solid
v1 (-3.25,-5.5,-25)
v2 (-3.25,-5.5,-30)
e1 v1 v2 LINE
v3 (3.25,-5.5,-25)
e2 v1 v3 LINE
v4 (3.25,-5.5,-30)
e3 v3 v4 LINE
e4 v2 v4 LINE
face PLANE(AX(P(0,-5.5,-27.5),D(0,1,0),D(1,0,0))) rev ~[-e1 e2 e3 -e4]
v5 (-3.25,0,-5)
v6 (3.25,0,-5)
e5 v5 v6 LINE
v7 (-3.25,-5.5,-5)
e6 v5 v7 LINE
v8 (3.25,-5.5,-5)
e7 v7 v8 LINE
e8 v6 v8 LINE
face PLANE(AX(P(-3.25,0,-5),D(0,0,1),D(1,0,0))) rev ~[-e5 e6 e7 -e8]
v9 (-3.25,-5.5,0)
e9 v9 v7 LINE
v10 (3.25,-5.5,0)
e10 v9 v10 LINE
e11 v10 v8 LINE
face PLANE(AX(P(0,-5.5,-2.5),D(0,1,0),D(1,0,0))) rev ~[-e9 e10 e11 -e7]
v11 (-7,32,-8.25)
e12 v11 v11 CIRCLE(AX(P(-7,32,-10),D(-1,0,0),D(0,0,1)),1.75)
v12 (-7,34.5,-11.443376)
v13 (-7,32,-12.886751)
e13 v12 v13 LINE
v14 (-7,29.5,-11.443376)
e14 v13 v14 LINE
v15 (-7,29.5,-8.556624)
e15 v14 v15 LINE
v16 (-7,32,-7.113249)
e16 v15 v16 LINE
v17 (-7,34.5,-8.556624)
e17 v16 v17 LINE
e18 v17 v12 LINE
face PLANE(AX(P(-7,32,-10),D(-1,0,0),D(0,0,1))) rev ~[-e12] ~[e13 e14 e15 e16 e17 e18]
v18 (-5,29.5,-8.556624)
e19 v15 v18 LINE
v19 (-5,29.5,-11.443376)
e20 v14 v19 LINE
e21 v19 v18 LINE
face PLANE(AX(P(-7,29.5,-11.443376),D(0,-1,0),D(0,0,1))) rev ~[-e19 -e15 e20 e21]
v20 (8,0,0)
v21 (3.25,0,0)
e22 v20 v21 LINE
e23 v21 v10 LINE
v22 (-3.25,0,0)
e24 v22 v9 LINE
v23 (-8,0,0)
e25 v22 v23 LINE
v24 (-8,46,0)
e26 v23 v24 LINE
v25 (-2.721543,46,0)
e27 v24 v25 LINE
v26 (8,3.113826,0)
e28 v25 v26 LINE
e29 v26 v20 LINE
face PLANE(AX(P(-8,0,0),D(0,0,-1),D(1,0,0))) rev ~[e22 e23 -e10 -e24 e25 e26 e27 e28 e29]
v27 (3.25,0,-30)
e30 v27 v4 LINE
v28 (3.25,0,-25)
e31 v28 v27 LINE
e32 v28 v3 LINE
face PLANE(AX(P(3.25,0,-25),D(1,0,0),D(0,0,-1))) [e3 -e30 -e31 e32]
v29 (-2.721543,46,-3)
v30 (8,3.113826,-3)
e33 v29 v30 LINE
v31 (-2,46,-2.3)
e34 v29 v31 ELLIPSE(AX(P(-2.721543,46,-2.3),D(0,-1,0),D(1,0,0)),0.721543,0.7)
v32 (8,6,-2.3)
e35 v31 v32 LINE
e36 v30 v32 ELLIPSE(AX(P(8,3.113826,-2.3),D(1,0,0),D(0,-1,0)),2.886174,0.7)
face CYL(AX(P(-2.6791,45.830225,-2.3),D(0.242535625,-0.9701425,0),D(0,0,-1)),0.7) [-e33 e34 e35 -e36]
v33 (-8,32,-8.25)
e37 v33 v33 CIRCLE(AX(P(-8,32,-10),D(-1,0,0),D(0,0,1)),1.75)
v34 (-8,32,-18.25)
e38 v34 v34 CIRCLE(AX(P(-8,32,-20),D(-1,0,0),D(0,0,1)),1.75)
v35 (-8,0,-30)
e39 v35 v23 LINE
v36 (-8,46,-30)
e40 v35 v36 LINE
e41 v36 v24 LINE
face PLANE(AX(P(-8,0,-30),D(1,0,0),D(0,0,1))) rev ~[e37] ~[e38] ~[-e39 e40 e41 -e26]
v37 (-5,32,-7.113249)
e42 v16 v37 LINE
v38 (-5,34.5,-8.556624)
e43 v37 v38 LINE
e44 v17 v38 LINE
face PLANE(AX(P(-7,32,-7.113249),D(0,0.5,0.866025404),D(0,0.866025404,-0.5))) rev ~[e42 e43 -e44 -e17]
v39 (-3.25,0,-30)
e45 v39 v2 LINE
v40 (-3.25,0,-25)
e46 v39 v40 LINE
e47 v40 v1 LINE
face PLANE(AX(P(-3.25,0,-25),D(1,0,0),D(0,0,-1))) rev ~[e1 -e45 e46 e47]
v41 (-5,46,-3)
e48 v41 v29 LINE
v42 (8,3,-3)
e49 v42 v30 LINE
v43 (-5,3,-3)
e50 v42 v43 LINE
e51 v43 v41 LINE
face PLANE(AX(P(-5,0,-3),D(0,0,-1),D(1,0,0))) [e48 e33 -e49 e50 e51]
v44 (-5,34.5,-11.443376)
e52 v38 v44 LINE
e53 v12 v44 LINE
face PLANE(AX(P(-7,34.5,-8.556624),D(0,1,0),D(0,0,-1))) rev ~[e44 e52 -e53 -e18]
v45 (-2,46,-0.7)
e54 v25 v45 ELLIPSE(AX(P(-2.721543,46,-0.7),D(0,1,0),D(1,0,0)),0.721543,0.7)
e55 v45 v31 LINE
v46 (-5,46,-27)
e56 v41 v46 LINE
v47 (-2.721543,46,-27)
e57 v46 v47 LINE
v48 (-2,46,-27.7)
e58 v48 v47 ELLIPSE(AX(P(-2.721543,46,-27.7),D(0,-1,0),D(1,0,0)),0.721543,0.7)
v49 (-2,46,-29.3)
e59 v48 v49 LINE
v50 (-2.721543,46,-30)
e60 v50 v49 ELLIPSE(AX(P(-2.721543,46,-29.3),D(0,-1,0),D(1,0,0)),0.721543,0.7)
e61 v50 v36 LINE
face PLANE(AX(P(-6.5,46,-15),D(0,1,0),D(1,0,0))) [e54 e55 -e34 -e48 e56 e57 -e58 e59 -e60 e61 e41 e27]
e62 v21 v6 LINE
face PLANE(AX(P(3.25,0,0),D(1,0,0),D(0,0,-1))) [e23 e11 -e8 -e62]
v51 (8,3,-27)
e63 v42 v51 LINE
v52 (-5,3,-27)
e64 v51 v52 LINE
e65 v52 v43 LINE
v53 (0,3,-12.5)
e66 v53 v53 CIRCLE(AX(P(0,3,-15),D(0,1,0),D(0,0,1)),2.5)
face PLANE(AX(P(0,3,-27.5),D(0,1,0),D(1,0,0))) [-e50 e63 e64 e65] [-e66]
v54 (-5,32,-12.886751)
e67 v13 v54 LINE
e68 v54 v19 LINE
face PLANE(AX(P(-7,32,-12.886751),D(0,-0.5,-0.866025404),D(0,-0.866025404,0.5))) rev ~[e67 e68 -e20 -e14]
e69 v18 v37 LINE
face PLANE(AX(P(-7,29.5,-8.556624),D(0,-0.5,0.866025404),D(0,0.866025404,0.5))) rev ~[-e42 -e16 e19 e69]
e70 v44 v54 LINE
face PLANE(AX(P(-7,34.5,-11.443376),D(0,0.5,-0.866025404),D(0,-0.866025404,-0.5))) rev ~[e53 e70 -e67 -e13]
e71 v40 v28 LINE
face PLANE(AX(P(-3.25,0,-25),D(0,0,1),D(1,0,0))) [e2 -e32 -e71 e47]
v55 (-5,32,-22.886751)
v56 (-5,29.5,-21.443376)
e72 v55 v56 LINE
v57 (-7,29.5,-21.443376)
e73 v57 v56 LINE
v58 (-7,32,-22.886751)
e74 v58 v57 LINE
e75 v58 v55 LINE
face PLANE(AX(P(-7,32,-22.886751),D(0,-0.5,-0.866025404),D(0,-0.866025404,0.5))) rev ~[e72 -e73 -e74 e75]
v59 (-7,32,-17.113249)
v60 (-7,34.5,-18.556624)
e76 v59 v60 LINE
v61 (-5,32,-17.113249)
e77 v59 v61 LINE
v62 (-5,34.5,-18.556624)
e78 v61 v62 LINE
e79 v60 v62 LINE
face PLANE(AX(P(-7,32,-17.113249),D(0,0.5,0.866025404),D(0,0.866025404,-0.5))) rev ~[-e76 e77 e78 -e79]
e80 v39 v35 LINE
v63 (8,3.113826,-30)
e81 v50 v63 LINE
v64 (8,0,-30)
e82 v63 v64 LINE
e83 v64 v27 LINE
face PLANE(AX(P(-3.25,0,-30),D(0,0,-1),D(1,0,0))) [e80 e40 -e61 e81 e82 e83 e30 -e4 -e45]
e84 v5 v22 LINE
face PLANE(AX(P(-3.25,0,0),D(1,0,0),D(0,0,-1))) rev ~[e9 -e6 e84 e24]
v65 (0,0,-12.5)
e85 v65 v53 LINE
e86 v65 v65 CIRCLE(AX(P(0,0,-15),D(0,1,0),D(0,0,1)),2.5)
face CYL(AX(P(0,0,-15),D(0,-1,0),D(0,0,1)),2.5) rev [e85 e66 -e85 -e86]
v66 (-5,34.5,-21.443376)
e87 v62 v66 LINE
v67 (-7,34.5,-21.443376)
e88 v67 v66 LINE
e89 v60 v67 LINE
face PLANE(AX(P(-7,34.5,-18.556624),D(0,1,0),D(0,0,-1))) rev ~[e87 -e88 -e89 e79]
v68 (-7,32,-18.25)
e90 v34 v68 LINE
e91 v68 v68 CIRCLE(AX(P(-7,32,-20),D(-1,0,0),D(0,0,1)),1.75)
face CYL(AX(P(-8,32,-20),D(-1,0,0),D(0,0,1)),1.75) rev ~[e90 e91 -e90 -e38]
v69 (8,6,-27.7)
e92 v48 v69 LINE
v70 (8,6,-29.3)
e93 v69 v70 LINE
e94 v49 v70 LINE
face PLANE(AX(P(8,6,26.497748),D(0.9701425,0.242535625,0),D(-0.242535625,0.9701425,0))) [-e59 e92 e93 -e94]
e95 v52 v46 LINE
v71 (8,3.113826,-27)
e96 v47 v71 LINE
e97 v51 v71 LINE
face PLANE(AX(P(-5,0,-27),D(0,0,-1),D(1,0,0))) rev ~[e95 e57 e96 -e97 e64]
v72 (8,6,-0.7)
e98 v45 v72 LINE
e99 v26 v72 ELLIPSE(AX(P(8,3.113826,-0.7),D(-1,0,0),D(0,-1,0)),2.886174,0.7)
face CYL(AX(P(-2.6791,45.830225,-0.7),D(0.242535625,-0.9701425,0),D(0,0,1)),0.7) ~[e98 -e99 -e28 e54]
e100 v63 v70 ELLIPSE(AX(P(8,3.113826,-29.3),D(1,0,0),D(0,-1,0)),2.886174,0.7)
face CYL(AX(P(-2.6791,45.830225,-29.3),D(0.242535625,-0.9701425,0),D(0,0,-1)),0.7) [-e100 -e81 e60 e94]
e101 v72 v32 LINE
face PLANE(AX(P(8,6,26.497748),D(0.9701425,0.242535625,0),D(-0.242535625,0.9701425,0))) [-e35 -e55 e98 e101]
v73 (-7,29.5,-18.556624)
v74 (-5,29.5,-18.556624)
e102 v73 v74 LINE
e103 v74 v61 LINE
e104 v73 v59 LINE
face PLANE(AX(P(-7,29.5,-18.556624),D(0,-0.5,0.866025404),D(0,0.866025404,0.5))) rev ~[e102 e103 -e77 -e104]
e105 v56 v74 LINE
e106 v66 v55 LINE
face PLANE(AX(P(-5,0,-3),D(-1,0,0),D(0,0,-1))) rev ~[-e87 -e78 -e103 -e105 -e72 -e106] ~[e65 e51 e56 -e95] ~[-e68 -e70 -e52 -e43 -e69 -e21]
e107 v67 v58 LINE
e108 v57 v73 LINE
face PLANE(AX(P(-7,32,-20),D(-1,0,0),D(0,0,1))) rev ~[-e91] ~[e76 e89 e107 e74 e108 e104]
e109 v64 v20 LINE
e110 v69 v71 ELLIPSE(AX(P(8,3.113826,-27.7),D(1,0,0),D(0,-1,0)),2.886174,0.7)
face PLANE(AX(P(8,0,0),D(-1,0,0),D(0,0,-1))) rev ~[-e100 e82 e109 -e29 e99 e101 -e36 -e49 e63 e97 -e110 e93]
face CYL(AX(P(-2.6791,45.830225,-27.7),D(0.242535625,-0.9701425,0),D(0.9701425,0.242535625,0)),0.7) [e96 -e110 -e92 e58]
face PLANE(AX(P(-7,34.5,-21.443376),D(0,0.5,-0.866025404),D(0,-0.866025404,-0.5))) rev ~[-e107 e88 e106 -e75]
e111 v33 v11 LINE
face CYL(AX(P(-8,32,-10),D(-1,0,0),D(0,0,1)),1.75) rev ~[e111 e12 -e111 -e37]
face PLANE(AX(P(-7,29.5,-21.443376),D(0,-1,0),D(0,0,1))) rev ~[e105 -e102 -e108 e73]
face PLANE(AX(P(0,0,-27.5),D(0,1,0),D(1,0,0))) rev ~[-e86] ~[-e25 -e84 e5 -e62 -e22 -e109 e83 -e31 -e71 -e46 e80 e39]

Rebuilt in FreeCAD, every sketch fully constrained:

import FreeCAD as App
import Part
import Sketcher

V = App.Vector
Q = App.Units.Quantity


def edges_at(feature, points):
    """Names of the edges that pass closest to the given points."""
    edges = feature.Shape.Edges
    near = lambda p: min(range(len(edges)), key=lambda i: edges[i].distToShape(Part.Vertex(*p))[0])
    return sorted({f"Edge{near(p) + 1}" for p in points})

doc = App.newDocument("Part")
params = doc.addObject("Spreadsheet::Sheet", "Params")
for row, (alias, value) in enumerate([
    ("sketch1_diameter", "5 mm"),
    ("sketch1_width", "16 mm"),
    ("sketch1_height", "30 mm"),
    ("pad1_length", "3 mm"),
    ("sketch2_height", "5 mm"),
    ("sketch2_width", "6.5 mm"),
    ("pad2_length", "5.5 mm"),
    ("sketch3_width", "16 mm"),
    ("sketch3_width2", "13 mm"),
    ("sketch3_height", "3 mm"),
    ("sketch3_height2", "24 mm"),
    ("pad3_length", "46 mm"),
    ("sketch4_width", "10 mm"),
    ("sketch4_height", "40 mm"),
    ("sketch5_diameter", "3.5 mm"),
    ("pocket2_length", "57.201399 mm"),
    ("sketch6_diameter", "3.5 mm"),
    ("fillet_radius", "0.7 mm"),
], start=1):
    params.set(f"A{row}", alias)
    params.set(f"B{row}", "=" + value)
    params.setAlias(f"B{row}", alias)

body = doc.addObject("PartDesign::Body", "Body")

# Sketch on XZ plane
sketch1 = body.newObject("Sketcher::SketchObject", "Sketch")
sketch1.AttachmentSupport = (doc.getObject("XZ_Plane"), [""])
sketch1.MapMode = "FlatFace"
sketch1.addGeometry([
    Part.LineSegment(V(-8, -30, 0), V(-8, 0, 0)),  # 0
    Part.LineSegment(V(-8, 0, 0), V(8, 0, 0)),  # 1
    Part.LineSegment(V(8, 0, 0), V(8, -30, 0)),  # 2
    Part.LineSegment(V(8, -30, 0), V(-8, -30, 0)),  # 3
    Part.Circle(V(0, -15, 0), V(0, 0, 1), 2.5),  # 4
], False)
sketch1.addConstraint([
    Sketcher.Constraint("Coincident", 0, 2, 1, 1),
    Sketcher.Constraint("Coincident", 1, 2, 2, 1),
    Sketcher.Constraint("Coincident", 2, 2, 3, 1),
    Sketcher.Constraint("Coincident", 3, 2, 0, 1),
    Sketcher.Constraint("Vertical", 0),
    Sketcher.Constraint("Horizontal", 1),
    Sketcher.Constraint("Vertical", 2),
    Sketcher.Constraint("Horizontal", 3),
    Sketcher.Constraint("Symmetric", 0, 2, 1, 2, -1, 1),
    Sketcher.Constraint("PointOnObject", 4, 3, -2),
    Sketcher.Constraint("Diameter", 4, Q("5 mm")),
    Sketcher.Constraint("DistanceX", 1, 1, 1, 2, Q("16 mm")),
    Sketcher.Constraint("DistanceY", 0, 1, 0, 2, Q("30 mm")),
    Sketcher.Constraint("DistanceY", 4, 3, -1, 1, Q("15 mm")),
])
sketch1.setExpression("Constraints[10]", "Params.sketch1_diameter")
sketch1.setExpression("Constraints[11]", "Params.sketch1_width")
sketch1.setExpression("Constraints[12]", "Params.sketch1_height")
pad1 = body.newObject("PartDesign::Pad", "Pad")
pad1.Profile = sketch1
pad1.setExpression("Length", "Params.pad1_length")
pad1.Reversed = True

# Sketch on XZ plane
sketch2 = body.newObject("Sketcher::SketchObject", "Sketch001")
sketch2.AttachmentSupport = (doc.getObject("XZ_Plane"), [""])
sketch2.MapMode = "FlatFace"
sketch2.addGeometry([
    Part.LineSegment(V(-3, -30, 0), V(-3, -25, 0)),  # 0
    Part.LineSegment(V(-3, -25, 0), V(3, -25, 0)),  # 1
    Part.LineSegment(V(3, -25, 0), V(3, -30, 0)),  # 2
    Part.LineSegment(V(3, -30, 0), V(-3, -30, 0)),  # 3
    Part.LineSegment(V(-3, -5, 0), V(-3, 0, 0)),  # 4
    Part.LineSegment(V(-3, 0, 0), V(3, 0, 0)),  # 5
    Part.LineSegment(V(3, 0, 0), V(3, -5, 0)),  # 6
    Part.LineSegment(V(3, -5, 0), V(-3, -5, 0)),  # 7
], False)
sketch2.addConstraint([
    Sketcher.Constraint("Coincident", 0, 2, 1, 1),
    Sketcher.Constraint("Coincident", 1, 2, 2, 1),
    Sketcher.Constraint("Coincident", 2, 2, 3, 1),
    Sketcher.Constraint("Coincident", 3, 2, 0, 1),
    Sketcher.Constraint("Coincident", 4, 2, 5, 1),
    Sketcher.Constraint("Coincident", 5, 2, 6, 1),
    Sketcher.Constraint("Coincident", 6, 2, 7, 1),
    Sketcher.Constraint("Coincident", 7, 2, 4, 1),
    Sketcher.Constraint("Vertical", 0),
    Sketcher.Constraint("Horizontal", 1),
    Sketcher.Constraint("Vertical", 2),
    Sketcher.Constraint("Horizontal", 3),
    Sketcher.Constraint("Vertical", 4),
    Sketcher.Constraint("Horizontal", 5),
    Sketcher.Constraint("Vertical", 6),
    Sketcher.Constraint("Horizontal", 7),
    Sketcher.Constraint("Symmetric", 4, 2, 5, 2, -1, 1),
    Sketcher.Constraint("Vertical", 3, 2, 4, 2),
    Sketcher.Constraint("Vertical", 2, 2, 5, 2),
    Sketcher.Constraint("Equal", 2, 4),
    Sketcher.Constraint("DistanceY", 0, 1, 0, 2, Q("5 mm")),
    Sketcher.Constraint("DistanceX", 1, 1, 1, 2, Q("6.5 mm")),
    Sketcher.Constraint("DistanceY", 0, 2, -1, 1, Q("25 mm")),
])
sketch2.setExpression("Constraints[20]", "Params.sketch2_height")
sketch2.setExpression("Constraints[21]", "Params.sketch2_width")
pad2 = body.newObject("PartDesign::Pad", "Pad001")
pad2.Profile = sketch2
pad2.setExpression("Length", "Params.pad2_length")

# Sketch on XZ plane
sketch3 = body.newObject("Sketcher::SketchObject", "Sketch002")
sketch3.AttachmentSupport = (doc.getObject("XZ_Plane"), [""])
sketch3.MapMode = "FlatFace"
sketch3.addGeometry([
    Part.LineSegment(V(-8, 0, 0), V(8, 0, 0)),  # 0
    Part.LineSegment(V(8, 0, 0), V(8, -3, 0)),  # 1
    Part.LineSegment(V(8, -3, 0), V(-5, -3, 0)),  # 2
    Part.LineSegment(V(-5, -3, 0), V(-5, -27, 0)),  # 3
    Part.LineSegment(V(-5, -27, 0), V(8, -27, 0)),  # 4
    Part.LineSegment(V(8, -27, 0), V(8, -30, 0)),  # 5
    Part.LineSegment(V(8, -30, 0), V(-8, -30, 0)),  # 6
    Part.LineSegment(V(-8, -30, 0), V(-8, 0, 0)),  # 7
], False)
sketch3.addConstraint([
    Sketcher.Constraint("Coincident", 0, 2, 1, 1),
    Sketcher.Constraint("Coincident", 1, 2, 2, 1),
    Sketcher.Constraint("Coincident", 2, 2, 3, 1),
    Sketcher.Constraint("Coincident", 3, 2, 4, 1),
    Sketcher.Constraint("Coincident", 4, 2, 5, 1),
    Sketcher.Constraint("Coincident", 5, 2, 6, 1),
    Sketcher.Constraint("Coincident", 6, 2, 7, 1),
    Sketcher.Constraint("Coincident", 7, 2, 0, 1),
    Sketcher.Constraint("Horizontal", 0),
    Sketcher.Constraint("Vertical", 1),
    Sketcher.Constraint("Horizontal", 2),
    Sketcher.Constraint("Vertical", 3),
    Sketcher.Constraint("Horizontal", 4),
    Sketcher.Constraint("Vertical", 5),
    Sketcher.Constraint("Horizontal", 6),
    Sketcher.Constraint("Vertical", 7),
    Sketcher.Constraint("Symmetric", 0, 2, 7, 2, -1, 1),
    Sketcher.Constraint("Vertical", 1, 2, 4, 2),
    Sketcher.Constraint("Equal", 1, 5),
    Sketcher.Constraint("DistanceX", 0, 1, 0, 2, Q("16 mm")),
    Sketcher.Constraint("DistanceX", 2, 2, 2, 1, Q("13 mm")),
    Sketcher.Constraint("DistanceY", 1, 2, 1, 1, Q("3 mm")),
    Sketcher.Constraint("DistanceY", 3, 2, 3, 1, Q("24 mm")),
])
sketch3.setExpression("Constraints[19]", "Params.sketch3_width")
sketch3.setExpression("Constraints[20]", "Params.sketch3_width2")
sketch3.setExpression("Constraints[21]", "Params.sketch3_height")
sketch3.setExpression("Constraints[22]", "Params.sketch3_height2")
pad3 = body.newObject("PartDesign::Pad", "Pad002")
pad3.Profile = sketch3
pad3.setExpression("Length", "Params.pad3_length")
pad3.Reversed = True

# Sketch on XY plane
sketch4 = body.newObject("Sketcher::SketchObject", "Sketch003")
sketch4.AttachmentSupport = (doc.getObject("XY_Plane"), [""])
sketch4.MapMode = "FlatFace"
sketch4.AttachmentOffset = App.Placement(V(0, 0, -30), App.Rotation())
sketch4.addGeometry([
    Part.LineSegment(V(8, 6, 0), V(-2, 46, 0)),
    Part.LineSegment(V(-2, 46, 0), V(8, 46, 0)),
    Part.LineSegment(V(8, 46, 0), V(8, 6, 0)),
], False)
sketch4.addConstraint([
    Sketcher.Constraint("Coincident", 0, 2, 1, 1),
    Sketcher.Constraint("Coincident", 1, 2, 2, 1),
    Sketcher.Constraint("Coincident", 2, 2, 0, 1),
    Sketcher.Constraint("Horizontal", 1),
    Sketcher.Constraint("Vertical", 2),
    Sketcher.Constraint("DistanceX", 1, 1, 1, 2, Q("10 mm")),
    Sketcher.Constraint("DistanceY", 2, 2, 2, 1, Q("40 mm")),
    Sketcher.Constraint("DistanceX", 0, 2, -1, 1, Q("2 mm")),
    Sketcher.Constraint("DistanceY", -1, 1, 0, 2, Q("46 mm")),
])
sketch4.setExpression("Constraints[5]", "Params.sketch4_width")
sketch4.setExpression("Constraints[6]", "Params.sketch4_height")
pocket1 = body.newObject("PartDesign::Pocket", "Pocket")
pocket1.Profile = sketch4
pocket1.Type = "ThroughAll"
pocket1.Midplane = True

# Sketch on YZ plane
sketch5 = body.newObject("Sketcher::SketchObject", "Sketch004")
sketch5.AttachmentSupport = (doc.getObject("YZ_Plane"), [""])
sketch5.MapMode = "FlatFace"
sketch5.AttachmentOffset = App.Placement(V(0, 0, -7), App.Rotation())
sketch5.addGeometry([
    Part.LineSegment(V(29.5, -8.6, 0), V(32, -7.1, 0)),  # 0
    Part.LineSegment(V(32, -7.1, 0), V(34.5, -8.6, 0)),  # 1
    Part.LineSegment(V(34.5, -8.6, 0), V(34.5, -11.4, 0)),  # 2
    Part.LineSegment(V(34.5, -11.4, 0), V(32, -12.9, 0)),  # 3
    Part.LineSegment(V(32, -12.9, 0), V(29.5, -11.4, 0)),  # 4
    Part.LineSegment(V(29.5, -11.4, 0), V(29.5, -8.6, 0)),  # 5
    Part.Circle(V(32, -10, 0), V(0, 0, 1), 1.8),  # 6
    Part.LineSegment(V(29.5, -18.6, 0), V(32, -17.1, 0)),  # 7
    Part.LineSegment(V(32, -17.1, 0), V(34.5, -18.6, 0)),  # 8
    Part.LineSegment(V(34.5, -18.6, 0), V(34.5, -21.4, 0)),  # 9
    Part.LineSegment(V(34.5, -21.4, 0), V(32, -22.9, 0)),  # 10
    Part.LineSegment(V(32, -22.9, 0), V(29.5, -21.4, 0)),  # 11
    Part.LineSegment(V(29.5, -21.4, 0), V(29.5, -18.6, 0)),  # 12
    Part.Circle(V(32, -20, 0), V(0, 0, 1), 1.8),  # 13
], False)
sketch5.addConstraint([
    Sketcher.Constraint("Coincident", 0, 2, 1, 1),
    Sketcher.Constraint("Coincident", 1, 2, 2, 1),
    Sketcher.Constraint("Coincident", 2, 2, 3, 1),
    Sketcher.Constraint("Coincident", 3, 2, 4, 1),
    Sketcher.Constraint("Coincident", 4, 2, 5, 1),
    Sketcher.Constraint("Coincident", 5, 2, 0, 1),
    Sketcher.Constraint("Coincident", 7, 2, 8, 1),
    Sketcher.Constraint("Coincident", 8, 2, 9, 1),
    Sketcher.Constraint("Coincident", 9, 2, 10, 1),
    Sketcher.Constraint("Coincident", 10, 2, 11, 1),
    Sketcher.Constraint("Coincident", 11, 2, 12, 1),
    Sketcher.Constraint("Coincident", 12, 2, 7, 1),
    Sketcher.Constraint("Vertical", 2),
    Sketcher.Constraint("Vertical", 5),
    Sketcher.Constraint("Vertical", 9),
    Sketcher.Constraint("Vertical", 12),
    Sketcher.Constraint("Equal", 6, 13),
    Sketcher.Constraint("Parallel", 0, 3),
    Sketcher.Constraint("Parallel", 1, 4),
    Sketcher.Constraint("Parallel", 3, 7),
    Sketcher.Constraint("Parallel", 4, 8),
    Sketcher.Constraint("Parallel", 7, 10),
    Sketcher.Constraint("Parallel", 8, 11),
    Sketcher.Constraint("Horizontal", 2, 2, 4, 2),
    Sketcher.Constraint("Horizontal", 1, 2, 5, 2),
    Sketcher.Constraint("Horizontal", 9, 2, 11, 2),
    Sketcher.Constraint("Horizontal", 8, 2, 12, 2),
    Sketcher.Constraint("Vertical", 6, 3, 13, 3),
    Sketcher.Constraint("Vertical", 13, 3, 0, 2),
    Sketcher.Constraint("Vertical", 0, 2, 3, 2),
    Sketcher.Constraint("Vertical", 3, 2, 7, 2),
    Sketcher.Constraint("Vertical", 2, 2, 8, 2),
    Sketcher.Constraint("Equal", 5, 9),
    Sketcher.Constraint("Diameter", 6, Q("3.5 mm")),
    Sketcher.Constraint("Angle", 0, Q("30 deg")),
    Sketcher.Constraint("DistanceX", -1, 1, 6, 3, Q("32 mm")),
    Sketcher.Constraint("DistanceY", 6, 3, -1, 1, Q("10 mm")),
    Sketcher.Constraint("DistanceY", 13, 3, -1, 1, Q("20 mm")),
    Sketcher.Constraint("DistanceX", 4, 2, 2, 2, Q("5 mm")),
    Sketcher.Constraint("DistanceY", 9, 2, 2, 2, Q("10 mm")),
    Sketcher.Constraint("DistanceY", 2, 2, 2, 1, Q("2.886751 mm")),
    Sketcher.Constraint("DistanceY", 0, 2, -1, 1, Q("7.113249 mm")),
])
sketch5.setExpression("Constraints[33]", "Params.sketch5_diameter")
pocket2 = body.newObject("PartDesign::Pocket", "Pocket001")
pocket2.Profile = sketch5
pocket2.setExpression("Length", "Params.pocket2_length")
pocket2.Reversed = True

# Sketch on YZ plane
sketch6 = body.newObject("Sketcher::SketchObject", "Sketch005")
sketch6.AttachmentSupport = (doc.getObject("YZ_Plane"), [""])
sketch6.MapMode = "FlatFace"
sketch6.AttachmentOffset = App.Placement(V(0, 0, -8), App.Rotation())
sketch6.addGeometry([
    Part.Circle(V(32, -20, 0), V(0, 0, 1), 1.8),
    Part.Circle(V(32, -10, 0), V(0, 0, 1), 1.8),
], False)
sketch6.addConstraint([
    Sketcher.Constraint("Equal", 0, 1),
    Sketcher.Constraint("Vertical", 0, 3, 1, 3),
    Sketcher.Constraint("Diameter", 0, Q("3.5 mm")),
    Sketcher.Constraint("DistanceX", -1, 1, 0, 3, Q("32 mm")),
    Sketcher.Constraint("DistanceY", 0, 3, -1, 1, Q("20 mm")),
    Sketcher.Constraint("DistanceY", 1, 3, -1, 1, Q("10 mm")),
])
sketch6.setExpression("Constraints[2]", "Params.sketch6_diameter")
pocket3 = body.newObject("PartDesign::Pocket", "Pocket002")
pocket3.Profile = sketch6
pocket3.Type = "ThroughAll"
pocket3.Reversed = True
doc.recompute()

fillet = body.newObject("PartDesign::Fillet", "Fillet")
fillet.Base = (pocket3, edges_at(pocket3, [
    (3, 26, -30),
    (3, 26, -27),
    (3, 26, 0),
    (3, 26, -3),
]))
fillet.setExpression("Radius", "Params.fillet_radius")

doc.recompute()
